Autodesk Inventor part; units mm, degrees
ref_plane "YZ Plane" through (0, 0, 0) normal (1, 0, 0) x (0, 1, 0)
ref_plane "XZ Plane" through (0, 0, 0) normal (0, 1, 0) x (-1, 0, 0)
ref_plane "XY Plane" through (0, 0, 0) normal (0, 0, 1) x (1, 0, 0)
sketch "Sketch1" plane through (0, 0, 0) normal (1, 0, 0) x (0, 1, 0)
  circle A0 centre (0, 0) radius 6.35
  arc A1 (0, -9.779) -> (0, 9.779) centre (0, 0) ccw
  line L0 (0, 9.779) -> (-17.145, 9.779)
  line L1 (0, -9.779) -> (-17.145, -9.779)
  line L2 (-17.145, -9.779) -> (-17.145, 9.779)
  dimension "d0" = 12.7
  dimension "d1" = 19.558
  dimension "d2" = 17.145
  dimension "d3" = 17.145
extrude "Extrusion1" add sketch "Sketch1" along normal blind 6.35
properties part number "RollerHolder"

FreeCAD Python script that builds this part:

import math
import FreeCAD as App
import Part
import Sketcher

V = App.Vector
Q = App.Units.Quantity

doc = App.newDocument("Part")
body = doc.addObject("PartDesign::Body", "Body")

sketch1 = body.newObject("Sketcher::SketchObject", "Sketch")
sketch1.AttachmentSupport = (doc.getObject("YZ_Plane"), [""])
sketch1.MapMode = "FlatFace"
sketch1.addGeometry(Part.LineSegment(V(-17, -10, 0), V(0, -10, 0)), False)
sketch1.addGeometry(Part.ArcOfCircle(Part.Circle(V(0, 0, 0), V(0, 0, 1), 10), math.radians(-90), math.radians(90)), False)
sketch1.addGeometry(Part.LineSegment(V(0, 10, 0), V(-17, 10, 0)), False)
sketch1.addGeometry(Part.LineSegment(V(-17, 10, 0), V(-17, -10, 0)), False)
sketch1.addGeometry(Part.Circle(V(0, 0, 0), V(0, 0, 1), 6), False)
sketch1.addConstraint(Sketcher.Constraint("Tangent", 0, 2, 1, 1))
sketch1.addConstraint(Sketcher.Constraint("Tangent", 1, 2, 2, 1))
sketch1.addConstraint(Sketcher.Constraint("Coincident", 2, 2, 3, 1))
sketch1.addConstraint(Sketcher.Constraint("Coincident", 3, 2, 0, 1))
sketch1.addConstraint(Sketcher.Constraint("Horizontal", 0))
sketch1.addConstraint(Sketcher.Constraint("Horizontal", 2))
sketch1.addConstraint(Sketcher.Constraint("Vertical", 3))
sketch1.addConstraint(Sketcher.Constraint("Coincident", 1, 3, -1, 1))
sketch1.addConstraint(Sketcher.Constraint("Coincident", 4, 3, -1, 1))
sketch1.addConstraint(Sketcher.Constraint("Diameter", 4, Q("0.5 in")))
sketch1.addConstraint(Sketcher.Constraint("Radius", 1, Q("0.385 in")))
sketch1.addConstraint(Sketcher.Constraint("DistanceX", 0, 1, 0, 2, Q("0.675 in")))
pad1 = body.newObject("PartDesign::Pad", "Pad")
pad1.Profile = sketch1
pad1.Length = Q("0.25 in")

doc.recompute()
